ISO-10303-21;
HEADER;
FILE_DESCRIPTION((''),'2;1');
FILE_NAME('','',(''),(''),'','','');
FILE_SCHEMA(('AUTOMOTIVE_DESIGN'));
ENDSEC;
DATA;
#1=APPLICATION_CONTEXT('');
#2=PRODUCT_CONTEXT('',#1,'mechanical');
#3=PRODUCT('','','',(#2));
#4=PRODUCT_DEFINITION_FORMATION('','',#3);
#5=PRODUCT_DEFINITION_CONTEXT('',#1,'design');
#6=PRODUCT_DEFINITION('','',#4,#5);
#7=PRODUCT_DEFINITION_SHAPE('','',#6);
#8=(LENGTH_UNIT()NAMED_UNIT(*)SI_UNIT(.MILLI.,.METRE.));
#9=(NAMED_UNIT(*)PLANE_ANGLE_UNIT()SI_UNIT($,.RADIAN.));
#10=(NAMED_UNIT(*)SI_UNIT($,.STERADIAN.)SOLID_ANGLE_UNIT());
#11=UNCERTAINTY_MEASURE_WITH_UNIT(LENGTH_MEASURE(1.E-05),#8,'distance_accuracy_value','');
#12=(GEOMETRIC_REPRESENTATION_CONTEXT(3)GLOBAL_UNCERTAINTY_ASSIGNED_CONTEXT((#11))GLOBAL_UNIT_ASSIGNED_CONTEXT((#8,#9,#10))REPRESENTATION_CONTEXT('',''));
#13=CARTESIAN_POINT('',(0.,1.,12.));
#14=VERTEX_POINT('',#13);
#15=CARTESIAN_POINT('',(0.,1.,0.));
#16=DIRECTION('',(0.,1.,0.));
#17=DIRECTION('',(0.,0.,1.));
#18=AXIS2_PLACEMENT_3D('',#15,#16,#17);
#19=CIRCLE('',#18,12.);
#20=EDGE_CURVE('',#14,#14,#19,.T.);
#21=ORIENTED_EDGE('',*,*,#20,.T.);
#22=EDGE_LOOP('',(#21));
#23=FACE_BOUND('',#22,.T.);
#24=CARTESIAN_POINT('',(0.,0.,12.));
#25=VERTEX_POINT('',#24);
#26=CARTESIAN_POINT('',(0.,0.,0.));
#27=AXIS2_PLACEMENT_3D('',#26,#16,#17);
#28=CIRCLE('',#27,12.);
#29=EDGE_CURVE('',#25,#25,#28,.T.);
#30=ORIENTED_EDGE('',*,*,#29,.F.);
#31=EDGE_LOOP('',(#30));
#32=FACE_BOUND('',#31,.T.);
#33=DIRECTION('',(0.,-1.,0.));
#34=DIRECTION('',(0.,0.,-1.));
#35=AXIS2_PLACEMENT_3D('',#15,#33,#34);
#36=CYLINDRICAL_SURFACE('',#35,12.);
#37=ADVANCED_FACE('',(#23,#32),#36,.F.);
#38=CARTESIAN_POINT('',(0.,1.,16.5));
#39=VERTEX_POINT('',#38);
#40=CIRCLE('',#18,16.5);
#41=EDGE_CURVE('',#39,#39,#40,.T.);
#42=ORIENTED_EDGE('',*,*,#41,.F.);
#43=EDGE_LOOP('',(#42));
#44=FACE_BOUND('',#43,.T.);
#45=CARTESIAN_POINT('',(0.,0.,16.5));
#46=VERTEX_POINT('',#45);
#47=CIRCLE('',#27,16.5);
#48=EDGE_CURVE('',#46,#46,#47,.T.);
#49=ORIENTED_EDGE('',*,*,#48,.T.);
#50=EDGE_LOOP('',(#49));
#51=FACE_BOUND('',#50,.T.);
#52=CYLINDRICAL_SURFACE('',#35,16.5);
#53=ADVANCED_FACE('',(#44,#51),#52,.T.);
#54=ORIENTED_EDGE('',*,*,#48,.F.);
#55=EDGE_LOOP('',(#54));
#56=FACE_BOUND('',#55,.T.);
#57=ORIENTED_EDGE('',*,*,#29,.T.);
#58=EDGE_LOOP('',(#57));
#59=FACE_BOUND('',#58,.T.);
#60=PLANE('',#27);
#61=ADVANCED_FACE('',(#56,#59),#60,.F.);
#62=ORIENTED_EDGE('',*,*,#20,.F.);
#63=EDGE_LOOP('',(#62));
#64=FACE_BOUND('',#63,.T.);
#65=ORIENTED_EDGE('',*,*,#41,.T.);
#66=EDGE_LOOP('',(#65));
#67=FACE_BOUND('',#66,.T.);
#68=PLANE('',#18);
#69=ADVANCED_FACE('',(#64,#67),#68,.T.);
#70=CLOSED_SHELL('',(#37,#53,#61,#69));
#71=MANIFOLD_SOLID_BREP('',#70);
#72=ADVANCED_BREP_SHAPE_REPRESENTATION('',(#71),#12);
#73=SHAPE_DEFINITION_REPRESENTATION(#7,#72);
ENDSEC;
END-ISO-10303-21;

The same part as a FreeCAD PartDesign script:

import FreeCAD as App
import Part
import Sketcher
from FreeCAD import Vector
Q = App.Units.Quantity

doc = App.newDocument("Part")
body = doc.addObject("PartDesign::Body", "Body")

# Sketch on XZ plane
sketch1 = body.newObject("Sketcher::SketchObject", "Sketch")
sketch1.AttachmentSupport = (doc.getObject("XZ_Plane"), [""])
sketch1.MapMode = "FlatFace"
sketch1.addGeometry(Part.Circle(Vector(0, 0, 0), Vector(0, 0, 1), 16), False)
sketch1.addGeometry(Part.Circle(Vector(0, 0, 0), Vector(0, 0, 1), 12), False)
sketch1.addConstraint(Sketcher.Constraint("Coincident", 0, 3, -1, 1))
sketch1.addConstraint(Sketcher.Constraint("Coincident", 1, 3, -1, 1))
sketch1.addConstraint(Sketcher.Constraint("Diameter", 0, Q("33 mm")))
sketch1.addConstraint(Sketcher.Constraint("Diameter", 1, Q("24 mm")))
pad1 = body.newObject("PartDesign::Pad", "Pad")
pad1.Profile = sketch1
pad1.Length = 1
pad1.Reversed = True

doc.recompute()
